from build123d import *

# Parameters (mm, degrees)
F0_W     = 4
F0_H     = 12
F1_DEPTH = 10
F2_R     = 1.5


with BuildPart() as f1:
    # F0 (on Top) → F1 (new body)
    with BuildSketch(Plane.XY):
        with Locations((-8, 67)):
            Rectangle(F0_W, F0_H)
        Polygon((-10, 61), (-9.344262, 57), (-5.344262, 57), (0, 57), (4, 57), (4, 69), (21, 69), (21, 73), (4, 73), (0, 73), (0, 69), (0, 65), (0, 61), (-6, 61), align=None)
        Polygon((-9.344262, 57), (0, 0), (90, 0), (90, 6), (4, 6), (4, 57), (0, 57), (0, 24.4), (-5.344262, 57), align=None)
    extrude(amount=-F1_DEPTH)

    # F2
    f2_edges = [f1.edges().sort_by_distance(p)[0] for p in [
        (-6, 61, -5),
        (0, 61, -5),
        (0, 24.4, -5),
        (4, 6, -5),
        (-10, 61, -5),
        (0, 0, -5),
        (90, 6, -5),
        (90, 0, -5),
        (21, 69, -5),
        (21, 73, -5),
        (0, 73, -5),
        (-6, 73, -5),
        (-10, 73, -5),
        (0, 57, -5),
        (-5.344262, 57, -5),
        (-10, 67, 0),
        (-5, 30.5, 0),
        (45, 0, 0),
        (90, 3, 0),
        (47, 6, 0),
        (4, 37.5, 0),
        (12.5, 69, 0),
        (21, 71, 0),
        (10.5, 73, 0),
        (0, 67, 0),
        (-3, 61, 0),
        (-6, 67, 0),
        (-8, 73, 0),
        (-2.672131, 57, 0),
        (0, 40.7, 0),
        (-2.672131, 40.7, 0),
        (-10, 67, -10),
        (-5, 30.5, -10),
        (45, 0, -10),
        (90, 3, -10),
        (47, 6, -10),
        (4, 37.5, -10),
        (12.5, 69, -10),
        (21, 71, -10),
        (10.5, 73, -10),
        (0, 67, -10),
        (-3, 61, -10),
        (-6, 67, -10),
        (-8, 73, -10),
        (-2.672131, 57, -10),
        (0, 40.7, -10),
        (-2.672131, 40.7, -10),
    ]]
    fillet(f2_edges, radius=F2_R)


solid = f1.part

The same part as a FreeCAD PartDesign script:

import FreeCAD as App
import Part
import Sketcher


def edges_at(feature, points):
    """Names of the edges that pass closest to the given points."""
    edges = feature.Shape.Edges
    near = lambda p: min(range(len(edges)), key=lambda i: edges[i].distToShape(Part.Vertex(*p))[0])
    return sorted({f"Edge{near(p) + 1}" for p in points})

doc = App.newDocument("Part")
body = doc.addObject("PartDesign::Body", "Body")

sketch1 = body.newObject("Sketcher::SketchObject", "Sketch")
sketch1.AttachmentSupport = (doc.getObject("XY_Plane"), [""])
sketch1.MapMode = "FlatFace"
sketch1.addGeometry(Part.LineSegment(App.Vector(-10, 73, 0), App.Vector(-10, 61, 0)), False)
sketch1.addGeometry(Part.LineSegment(App.Vector(-10, 61, 0), App.Vector(-9.3, 57, 0)), False)
sketch1.addGeometry(Part.LineSegment(App.Vector(-9.3, 57, 0), App.Vector(0, 0, 0)), False)
sketch1.addGeometry(Part.LineSegment(App.Vector(0, 0, 0), App.Vector(90, 0, 0)), False)
sketch1.addGeometry(Part.LineSegment(App.Vector(90, 0, 0), App.Vector(90, 6, 0)), False)
sketch1.addGeometry(Part.LineSegment(App.Vector(90, 6, 0), App.Vector(4, 6, 0)), False)
sketch1.addGeometry(Part.LineSegment(App.Vector(4, 6, 0), App.Vector(4, 69, 0)), False)
sketch1.addGeometry(Part.LineSegment(App.Vector(4, 69, 0), App.Vector(21, 69, 0)), False)
sketch1.addGeometry(Part.LineSegment(App.Vector(21, 69, 0), App.Vector(21, 73, 0)), False)
sketch1.addGeometry(Part.LineSegment(App.Vector(21, 73, 0), App.Vector(0, 73, 0)), False)
sketch1.addGeometry(Part.LineSegment(App.Vector(0, 73, 0), App.Vector(0, 61, 0)), False)
sketch1.addGeometry(Part.LineSegment(App.Vector(0, 61, 0), App.Vector(-6, 61, 0)), False)
sketch1.addGeometry(Part.LineSegment(App.Vector(-6, 61, 0), App.Vector(-6, 73, 0)), False)
sketch1.addGeometry(Part.LineSegment(App.Vector(-6, 73, 0), App.Vector(-10, 73, 0)), False)
sketch1.addGeometry(Part.LineSegment(App.Vector(-5.3, 57, 0), App.Vector(0, 57, 0)), False)
sketch1.addGeometry(Part.LineSegment(App.Vector(0, 57, 0), App.Vector(0, 24.4, 0)), False)
sketch1.addGeometry(Part.LineSegment(App.Vector(0, 24.4, 0), App.Vector(-5.3, 57, 0)), False)
sketch1.addConstraint(Sketcher.Constraint("Coincident", 0, 2, 1, 1))
sketch1.addConstraint(Sketcher.Constraint("Coincident", 1, 2, 2, 1))
sketch1.addConstraint(Sketcher.Constraint("Coincident", 2, 2, 3, 1))
sketch1.addConstraint(Sketcher.Constraint("Coincident", 3, 2, 4, 1))
sketch1.addConstraint(Sketcher.Constraint("Coincident", 4, 2, 5, 1))
sketch1.addConstraint(Sketcher.Constraint("Coincident", 5, 2, 6, 1))
sketch1.addConstraint(Sketcher.Constraint("Coincident", 6, 2, 7, 1))
sketch1.addConstraint(Sketcher.Constraint("Coincident", 7, 2, 8, 1))
sketch1.addConstraint(Sketcher.Constraint("Coincident", 8, 2, 9, 1))
sketch1.addConstraint(Sketcher.Constraint("Coincident", 9, 2, 10, 1))
sketch1.addConstraint(Sketcher.Constraint("Coincident", 10, 2, 11, 1))
sketch1.addConstraint(Sketcher.Constraint("Coincident", 11, 2, 12, 1))
sketch1.addConstraint(Sketcher.Constraint("Coincident", 12, 2, 13, 1))
sketch1.addConstraint(Sketcher.Constraint("Coincident", 13, 2, 0, 1))
sketch1.addConstraint(Sketcher.Constraint("Coincident", 14, 2, 15, 1))
sketch1.addConstraint(Sketcher.Constraint("Coincident", 15, 2, 16, 1))
sketch1.addConstraint(Sketcher.Constraint("Coincident", 16, 2, 14, 1))
sketch1.addConstraint(Sketcher.Constraint("Vertical", 0))
sketch1.addConstraint(Sketcher.Constraint("Horizontal", 3))
sketch1.addConstraint(Sketcher.Constraint("Vertical", 4))
sketch1.addConstraint(Sketcher.Constraint("Horizontal", 5))
sketch1.addConstraint(Sketcher.Constraint("Vertical", 6))
sketch1.addConstraint(Sketcher.Constraint("Horizontal", 7))
sketch1.addConstraint(Sketcher.Constraint("Vertical", 8))
sketch1.addConstraint(Sketcher.Constraint("Horizontal", 9))
sketch1.addConstraint(Sketcher.Constraint("Vertical", 10))
sketch1.addConstraint(Sketcher.Constraint("Horizontal", 11))
sketch1.addConstraint(Sketcher.Constraint("Vertical", 12))
sketch1.addConstraint(Sketcher.Constraint("Horizontal", 13))
sketch1.addConstraint(Sketcher.Constraint("Horizontal", 14))
sketch1.addConstraint(Sketcher.Constraint("Vertical", 15))
sketch1.addConstraint(Sketcher.Constraint("Coincident", 2, 2, -1, 1))
sketch1.addConstraint(Sketcher.Constraint("PointOnObject", 9, 2, -2))
sketch1.addConstraint(Sketcher.Constraint("PointOnObject", 14, 2, -2))
sketch1.addConstraint(Sketcher.Constraint("Parallel", 1, 2))
sketch1.addConstraint(Sketcher.Constraint("Parallel", 2, 16))
sketch1.addConstraint(Sketcher.Constraint("Horizontal", 0, 2, 10, 2))
sketch1.addConstraint(Sketcher.Constraint("Horizontal", 9, 2, 12, 2))
sketch1.addConstraint(Sketcher.Constraint("Horizontal", 1, 2, 14, 2))
sketch1.addConstraint(Sketcher.Constraint("Equal", 11, 4))
sketch1.addConstraint(Sketcher.Constraint("Equal", 13, 8))
sketch1.addConstraint(Sketcher.Constraint("DistanceX", 3, 1, 3, 2, 90.0))
sketch1.addConstraint(Sketcher.Constraint("DistanceX", 5, 2, 5, 1, 86.0))
sketch1.addConstraint(Sketcher.Constraint("DistanceX", 7, 1, 7, 2, 17.0))
sketch1.addConstraint(Sketcher.Constraint("DistanceX", 11, 2, 11, 1, 6.0))
sketch1.addConstraint(Sketcher.Constraint("DistanceX", 13, 2, 13, 1, 4.0))
sketch1.addConstraint(Sketcher.Constraint("DistanceY", 0, 2, 0, 1, 12.0))
sketch1.addConstraint(Sketcher.Constraint("DistanceY", 6, 1, 6, 2, 63.0))
sketch1.addConstraint(Sketcher.Constraint("DistanceY", 15, 2, 15, 1, 32.6))
sketch1.addConstraint(Sketcher.Constraint("DistanceY", -1, 1, 1, 2, 57.0))
pad1 = body.newObject("PartDesign::Pad", "Pad")
pad1.Profile = sketch1
pad1.Length = 10
pad1.Reversed = True
doc.recompute()

fillet = body.newObject("PartDesign::Fillet", "Fillet")
fillet.Base = (pad1, edges_at(pad1, [
    (-6, 61, -5),
    (0, 61, -5),
    (0, 24.4, -5),
    (4, 6, -5),
    (-10, 61, -5),
    (0, 0, -5),
    (90, 6, -5),
    (90, 0, -5),
    (21, 69, -5),
    (21, 73, -5),
    (0, 73, -5),
    (-6, 73, -5),
    (-10, 73, -5),
    (0, 57, -5),
    (-5.344, 57, -5),
    (-10, 67, 0),
    (-4.672, 28.5, 0),
    (45, 0, 0),
    (90, 3, 0),
    (47, 6, 0),
    (4, 37.5, 0),
    (12.5, 69, 0),
    (21, 71, 0),
    (10.5, 73, 0),
    (0, 67, 0),
    (-3, 61, 0),
    (-6, 67, 0),
    (-8, 73, 0),
    (-2.672, 57, 0),
    (0, 40.7, 0),
    (-2.672, 40.7, 0),
    (-10, 67, -10),
    (-4.672, 28.5, -10),
    (45, 0, -10),
    (90, 3, -10),
    (47, 6, -10),
    (4, 37.5, -10),
    (12.5, 69, -10),
    (21, 71, -10),
    (10.5, 73, -10),
    (0, 67, -10),
    (-3, 61, -10),
    (-6, 67, -10),
    (-8, 73, -10),
    (-2.672, 57, -10),
    (0, 40.7, -10),
    (-2.672, 40.7, -10),
]))
fillet.Radius = 1.5

doc.recompute()
